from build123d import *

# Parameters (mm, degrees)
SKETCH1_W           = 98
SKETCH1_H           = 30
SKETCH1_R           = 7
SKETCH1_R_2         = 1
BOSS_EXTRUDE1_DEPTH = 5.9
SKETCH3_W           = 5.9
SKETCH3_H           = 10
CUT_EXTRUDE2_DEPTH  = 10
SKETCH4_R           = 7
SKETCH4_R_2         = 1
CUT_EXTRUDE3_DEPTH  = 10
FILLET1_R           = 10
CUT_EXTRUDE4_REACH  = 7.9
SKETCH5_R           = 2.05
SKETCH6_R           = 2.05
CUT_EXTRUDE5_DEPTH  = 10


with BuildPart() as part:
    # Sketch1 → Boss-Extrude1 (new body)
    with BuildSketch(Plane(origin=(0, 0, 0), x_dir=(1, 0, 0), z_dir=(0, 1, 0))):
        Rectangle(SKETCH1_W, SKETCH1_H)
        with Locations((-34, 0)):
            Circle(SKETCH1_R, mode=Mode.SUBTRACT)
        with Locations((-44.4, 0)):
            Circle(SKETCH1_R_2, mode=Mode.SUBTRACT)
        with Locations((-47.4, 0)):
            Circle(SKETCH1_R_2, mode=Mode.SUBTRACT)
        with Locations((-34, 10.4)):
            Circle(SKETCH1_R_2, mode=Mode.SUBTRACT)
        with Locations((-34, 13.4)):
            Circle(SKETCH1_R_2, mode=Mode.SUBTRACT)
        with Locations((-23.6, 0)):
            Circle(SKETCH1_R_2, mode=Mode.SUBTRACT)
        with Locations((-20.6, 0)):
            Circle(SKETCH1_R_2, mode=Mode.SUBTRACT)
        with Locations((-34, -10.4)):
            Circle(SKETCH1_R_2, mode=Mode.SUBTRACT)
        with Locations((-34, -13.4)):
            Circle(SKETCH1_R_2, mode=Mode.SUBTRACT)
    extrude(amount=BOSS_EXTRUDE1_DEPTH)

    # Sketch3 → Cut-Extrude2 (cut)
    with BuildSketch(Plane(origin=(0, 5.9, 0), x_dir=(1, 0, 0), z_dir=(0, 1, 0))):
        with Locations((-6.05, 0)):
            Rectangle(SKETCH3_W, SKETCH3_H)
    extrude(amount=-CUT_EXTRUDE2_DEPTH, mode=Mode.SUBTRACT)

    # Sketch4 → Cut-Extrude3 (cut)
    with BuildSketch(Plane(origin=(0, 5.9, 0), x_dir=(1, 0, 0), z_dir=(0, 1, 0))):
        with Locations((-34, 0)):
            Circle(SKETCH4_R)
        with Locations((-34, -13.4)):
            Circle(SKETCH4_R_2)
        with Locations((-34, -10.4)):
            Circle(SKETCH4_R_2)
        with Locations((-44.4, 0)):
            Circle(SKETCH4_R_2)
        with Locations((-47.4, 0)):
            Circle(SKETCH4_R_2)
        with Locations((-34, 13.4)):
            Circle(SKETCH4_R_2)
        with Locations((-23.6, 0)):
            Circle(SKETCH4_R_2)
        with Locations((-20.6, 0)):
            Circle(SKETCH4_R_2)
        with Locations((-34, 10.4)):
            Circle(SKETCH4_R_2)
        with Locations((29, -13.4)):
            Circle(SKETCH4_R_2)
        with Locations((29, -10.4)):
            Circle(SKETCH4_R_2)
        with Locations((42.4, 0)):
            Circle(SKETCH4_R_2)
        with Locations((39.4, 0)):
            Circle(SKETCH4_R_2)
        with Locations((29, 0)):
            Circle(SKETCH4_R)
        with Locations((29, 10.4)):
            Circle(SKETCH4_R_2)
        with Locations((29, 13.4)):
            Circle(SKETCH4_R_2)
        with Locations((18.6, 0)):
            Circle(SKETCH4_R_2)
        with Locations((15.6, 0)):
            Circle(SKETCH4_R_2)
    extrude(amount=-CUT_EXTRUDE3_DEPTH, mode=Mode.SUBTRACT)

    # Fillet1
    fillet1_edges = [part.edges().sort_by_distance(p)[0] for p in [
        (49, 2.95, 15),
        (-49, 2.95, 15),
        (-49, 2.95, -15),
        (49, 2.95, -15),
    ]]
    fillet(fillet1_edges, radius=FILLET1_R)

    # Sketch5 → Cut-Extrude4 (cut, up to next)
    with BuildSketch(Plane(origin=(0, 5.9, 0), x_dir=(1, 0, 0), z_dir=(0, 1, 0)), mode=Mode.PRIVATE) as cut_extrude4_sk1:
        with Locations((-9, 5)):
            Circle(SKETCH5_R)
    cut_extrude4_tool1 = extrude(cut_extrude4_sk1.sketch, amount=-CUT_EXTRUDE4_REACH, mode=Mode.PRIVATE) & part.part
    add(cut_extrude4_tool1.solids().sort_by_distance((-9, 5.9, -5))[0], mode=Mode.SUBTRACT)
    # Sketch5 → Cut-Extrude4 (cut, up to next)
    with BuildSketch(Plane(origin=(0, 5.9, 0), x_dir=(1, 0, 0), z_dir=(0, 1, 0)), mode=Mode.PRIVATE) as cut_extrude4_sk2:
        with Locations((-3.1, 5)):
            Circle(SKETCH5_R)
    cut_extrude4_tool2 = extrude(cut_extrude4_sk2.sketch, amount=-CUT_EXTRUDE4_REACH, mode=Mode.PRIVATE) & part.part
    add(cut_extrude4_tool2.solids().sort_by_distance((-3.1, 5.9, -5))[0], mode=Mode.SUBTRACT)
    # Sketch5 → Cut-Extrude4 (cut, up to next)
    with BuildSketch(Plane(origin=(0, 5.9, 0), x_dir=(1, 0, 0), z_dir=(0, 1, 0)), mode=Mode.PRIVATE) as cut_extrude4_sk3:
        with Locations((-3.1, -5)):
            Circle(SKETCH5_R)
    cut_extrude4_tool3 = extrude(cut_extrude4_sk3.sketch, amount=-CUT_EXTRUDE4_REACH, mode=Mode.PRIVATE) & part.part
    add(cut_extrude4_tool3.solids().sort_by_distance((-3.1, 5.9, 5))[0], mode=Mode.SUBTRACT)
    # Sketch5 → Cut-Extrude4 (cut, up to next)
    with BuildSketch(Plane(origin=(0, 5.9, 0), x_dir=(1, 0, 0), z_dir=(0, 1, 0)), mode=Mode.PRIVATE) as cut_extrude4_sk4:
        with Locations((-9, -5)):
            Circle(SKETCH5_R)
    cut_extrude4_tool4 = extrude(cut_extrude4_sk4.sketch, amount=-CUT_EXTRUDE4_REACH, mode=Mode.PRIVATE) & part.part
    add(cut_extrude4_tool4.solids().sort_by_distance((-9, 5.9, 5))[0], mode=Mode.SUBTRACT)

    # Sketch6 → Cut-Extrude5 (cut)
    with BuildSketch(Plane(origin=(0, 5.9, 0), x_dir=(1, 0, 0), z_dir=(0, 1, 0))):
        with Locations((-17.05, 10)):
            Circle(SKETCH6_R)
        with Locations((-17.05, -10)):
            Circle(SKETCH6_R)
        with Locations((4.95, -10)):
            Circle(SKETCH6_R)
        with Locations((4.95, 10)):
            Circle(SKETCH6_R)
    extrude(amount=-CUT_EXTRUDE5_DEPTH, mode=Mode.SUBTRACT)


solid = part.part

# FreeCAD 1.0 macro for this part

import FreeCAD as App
import Part
import Sketcher


def edges_at(feature, points):
    """Names of the edges that pass closest to the given points."""
    edges = feature.Shape.Edges
    near = lambda p: min(range(len(edges)), key=lambda i: edges[i].distToShape(Part.Vertex(*p))[0])
    return sorted({f"Edge{near(p) + 1}" for p in points})

doc = App.newDocument("Part")
params = doc.addObject("Spreadsheet::Sheet", "Params")
for row, (alias, value) in enumerate([
    ("sketch1_diameter", "2 mm"),
    ("sketch1_diameter2", "14 mm"),
    ("sketch1_width", "98 mm"),
    ("sketch1_height", "30 mm"),
    ("pad1_length", "5.9 mm"),
    ("sketch2_height", "10 mm"),
    ("sketch2_width", "5.9 mm"),
    ("pocket1_length", "10 mm"),
    ("sketch3_diameter", "14 mm"),
    ("sketch3_diameter2", "2 mm"),
    ("pocket2_length", "10 mm"),
    ("fillet_radius", "10 mm"),
    ("sketch4_diameter", "4.1 mm"),
    ("sketch5_diameter", "4.1 mm"),
    ("sketch6_diameter", "4.1 mm"),
    ("sketch7_diameter", "4.1 mm"),
    ("sketch8_diameter", "4.1 mm"),
    ("pocket7_length", "10 mm"),
], start=1):
    params.set(f"A{row}", alias)
    params.set(f"B{row}", "=" + value)
    params.setAlias(f"B{row}", alias)

body = doc.addObject("PartDesign::Body", "Body")

# Sketch on XZ plane
sketch1 = doc.addObject("Sketcher::SketchObject", "Sketch")
body.addObject(sketch1)
sketch1.AttachmentSupport = (doc.XZ_Plane, [""])
sketch1.MapMode = "FlatFace"
sketch1.addGeometry([
    Part.LineSegment(App.Vector(-49, -15, 0), App.Vector(-49, 15, 0)),  # 0
    Part.LineSegment(App.Vector(-49, 15, 0), App.Vector(49, 15, 0)),  # 1
    Part.LineSegment(App.Vector(49, 15, 0), App.Vector(49, -15, 0)),  # 2
    Part.LineSegment(App.Vector(49, -15, 0), App.Vector(-49, -15, 0)),  # 3
    Part.Circle(App.Vector(-34, 13.4, 0), App.Vector(0, 0, 1), 1),  # 4
    Part.Circle(App.Vector(-34, 10.4, 0), App.Vector(0, 0, 1), 1),  # 5
    Part.Circle(App.Vector(-47.4, 0, 0), App.Vector(0, 0, 1), 1),  # 6
    Part.Circle(App.Vector(-44.4, 0, 0), App.Vector(0, 0, 1), 1),  # 7
    Part.Circle(App.Vector(-34, 0, 0), App.Vector(0, 0, 1), 7),  # 8
    Part.Circle(App.Vector(-23.6, 0, 0), App.Vector(0, 0, 1), 1),  # 9
    Part.Circle(App.Vector(-20.6, 0, 0), App.Vector(0, 0, 1), 1),  # 10
    Part.Circle(App.Vector(-34, -10.4, 0), App.Vector(0, 0, 1), 1),  # 11
    Part.Circle(App.Vector(-34, -13.4, 0), App.Vector(0, 0, 1), 1),  # 12
], False)
sketch1.addConstraint([
    Sketcher.Constraint("Coincident", 0, 2, 1, 1),
    Sketcher.Constraint("Coincident", 1, 2, 2, 1),
    Sketcher.Constraint("Coincident", 2, 2, 3, 1),
    Sketcher.Constraint("Coincident", 3, 2, 0, 1),
    Sketcher.Constraint("Vertical", 0),
    Sketcher.Constraint("Horizontal", 1),
    Sketcher.Constraint("Vertical", 2),
    Sketcher.Constraint("Horizontal", 3),
    Sketcher.Constraint("Equal", 4, 5),
    Sketcher.Constraint("Equal", 5, 6),
    Sketcher.Constraint("Equal", 6, 7),
    Sketcher.Constraint("Equal", 7, 9),
    Sketcher.Constraint("Equal", 9, 10),
    Sketcher.Constraint("Equal", 10, 11),
    Sketcher.Constraint("Equal", 11, 12),
    Sketcher.Constraint("Symmetric", 0, 2, 2, 2, -1, 1),
    Sketcher.Constraint("Symmetric", 5, 3, 11, 3, -1),
    Sketcher.Constraint("Symmetric", 4, 3, 12, 3, -1),
    Sketcher.Constraint("PointOnObject", 6, 3, -1),
    Sketcher.Constraint("PointOnObject", 7, 3, -1),
    Sketcher.Constraint("PointOnObject", 8, 3, -1),
    Sketcher.Constraint("PointOnObject", 9, 3, -1),
    Sketcher.Constraint("PointOnObject", 10, 3, -1),
    Sketcher.Constraint("Vertical", 4, 3, 5, 3),
    Sketcher.Constraint("Vertical", 5, 3, 8, 3),
    Sketcher.Constraint("Diameter", 4, 2.0),
    Sketcher.Constraint("Diameter", 8, 14.0),
    Sketcher.Constraint("DistanceX", 1, 1, 1, 2, 98.0),
    Sketcher.Constraint("DistanceY", 0, 1, 0, 2, 30.0),
    Sketcher.Constraint("DistanceX", 4, 3, -1, 1, 34.0),
    Sketcher.Constraint("DistanceY", 5, 3, 4, 3, 3.0),
    Sketcher.Constraint("DistanceX", 6, 3, 7, 3, 3.0),
    Sketcher.Constraint("DistanceX", 9, 3, 10, 3, 3.0),
    Sketcher.Constraint("DistanceY", -1, 1, 4, 3, 13.4),
    Sketcher.Constraint("DistanceX", 6, 3, -1, 1, 47.4),
    Sketcher.Constraint("DistanceX", 9, 3, -1, 1, 23.6),
])
sketch1.setExpression("Constraints[25]", "Params.sketch1_diameter")
sketch1.setExpression("Constraints[26]", "Params.sketch1_diameter2")
sketch1.setExpression("Constraints[27]", "Params.sketch1_width")
sketch1.setExpression("Constraints[28]", "Params.sketch1_height")
pad1 = doc.addObject("PartDesign::Pad", "Pad")
body.addObject(pad1)
pad1.Profile = sketch1
pad1.setExpression("Length", "Params.pad1_length")
pad1.Reversed = True

# Sketch on XZ plane
sketch2 = doc.addObject("Sketcher::SketchObject", "Sketch001")
body.addObject(sketch2)
sketch2.AttachmentSupport = (doc.XZ_Plane, [""])
sketch2.MapMode = "FlatFace"
sketch2.AttachmentOffset = App.Placement(App.Vector(0, 0, -5.9), App.Rotation())
sketch2.addGeometry([
    Part.LineSegment(App.Vector(-9, -5, 0), App.Vector(-9, 5, 0)),
    Part.LineSegment(App.Vector(-9, 5, 0), App.Vector(-3, 5, 0)),
    Part.LineSegment(App.Vector(-3, 5, 0), App.Vector(-3, -5, 0)),
    Part.LineSegment(App.Vector(-3, -5, 0), App.Vector(-9, -5, 0)),
], False)
sketch2.addConstraint([
    Sketcher.Constraint("Coincident", 0, 2, 1, 1),
    Sketcher.Constraint("Coincident", 1, 2, 2, 1),
    Sketcher.Constraint("Coincident", 2, 2, 3, 1),
    Sketcher.Constraint("Coincident", 3, 2, 0, 1),
    Sketcher.Constraint("Vertical", 0),
    Sketcher.Constraint("Horizontal", 1),
    Sketcher.Constraint("Vertical", 2),
    Sketcher.Constraint("Horizontal", 3),
    Sketcher.Constraint("DistanceY", 0, 1, 0, 2, 10.0),
    Sketcher.Constraint("DistanceX", 1, 1, 1, 2, 5.9),
    Sketcher.Constraint("DistanceX", 0, 2, -1, 1, 9.0),
    Sketcher.Constraint("DistanceY", -1, 1, 0, 2, 5.0),
])
sketch2.setExpression("Constraints[8]", "Params.sketch2_height")
sketch2.setExpression("Constraints[9]", "Params.sketch2_width")
pocket1 = doc.addObject("PartDesign::Pocket", "Pocket")
body.addObject(pocket1)
pocket1.Profile = sketch2
pocket1.setExpression("Length", "Params.pocket1_length")
pocket1.Reversed = True

# Sketch on XZ plane
sketch3 = doc.addObject("Sketcher::SketchObject", "Sketch002")
body.addObject(sketch3)
sketch3.AttachmentSupport = (doc.XZ_Plane, [""])
sketch3.MapMode = "FlatFace"
sketch3.AttachmentOffset = App.Placement(App.Vector(0, 0, -5.9), App.Rotation())
sketch3.addGeometry([
    Part.Circle(App.Vector(-34, 0, 0), App.Vector(0, 0, 1), 7),  # 0
    Part.Circle(App.Vector(-34, 13.4, 0), App.Vector(0, 0, 1), 1),  # 1
    Part.Circle(App.Vector(-34, 10.4, 0), App.Vector(0, 0, 1), 1),  # 2
    Part.Circle(App.Vector(-44.4, 0, 0), App.Vector(0, 0, 1), 1),  # 3
    Part.Circle(App.Vector(-47.4, 0, 0), App.Vector(0, 0, 1), 1),  # 4
    Part.Circle(App.Vector(-34, -13.4, 0), App.Vector(0, 0, 1), 1),  # 5
    Part.Circle(App.Vector(-23.6, 0, 0), App.Vector(0, 0, 1), 1),  # 6
    Part.Circle(App.Vector(-20.6, 0, 0), App.Vector(0, 0, 1), 1),  # 7
    Part.Circle(App.Vector(-34, -10.4, 0), App.Vector(0, 0, 1), 1),  # 8
    Part.Circle(App.Vector(29, 13.4, 0), App.Vector(0, 0, 1), 1),  # 9
    Part.Circle(App.Vector(29, 10.4, 0), App.Vector(0, 0, 1), 1),  # 10
    Part.Circle(App.Vector(42.4, 0, 0), App.Vector(0, 0, 1), 1),  # 11
    Part.Circle(App.Vector(39.4, 0, 0), App.Vector(0, 0, 1), 1),  # 12
    Part.Circle(App.Vector(29, 0, 0), App.Vector(0, 0, 1), 7),  # 13
    Part.Circle(App.Vector(29, -10.4, 0), App.Vector(0, 0, 1), 1),  # 14
    Part.Circle(App.Vector(29, -13.4, 0), App.Vector(0, 0, 1), 1),  # 15
    Part.Circle(App.Vector(18.6, 0, 0), App.Vector(0, 0, 1), 1),  # 16
    Part.Circle(App.Vector(15.6, 0, 0), App.Vector(0, 0, 1), 1),  # 17
], False)
sketch3.addConstraint([
    Sketcher.Constraint("Equal", 1, 2),
    Sketcher.Constraint("Equal", 2, 3),
    Sketcher.Constraint("Equal", 3, 4),
    Sketcher.Constraint("Equal", 4, 5),
    Sketcher.Constraint("Equal", 5, 6),
    Sketcher.Constraint("Equal", 6, 7),
    Sketcher.Constraint("Equal", 7, 8),
    Sketcher.Constraint("Equal", 8, 9),
    Sketcher.Constraint("Equal", 9, 10),
    Sketcher.Constraint("Equal", 10, 11),
    Sketcher.Constraint("Equal", 11, 12),
    Sketcher.Constraint("Equal", 0, 13),
    Sketcher.Constraint("Equal", 12, 14),
    Sketcher.Constraint("Equal", 14, 15),
    Sketcher.Constraint("Equal", 15, 16),
    Sketcher.Constraint("Equal", 16, 17),
    Sketcher.Constraint("Symmetric", 1, 3, 5, 3, -1),
    Sketcher.Constraint("Symmetric", 2, 3, 8, 3, -1),
    Sketcher.Constraint("Symmetric", 10, 3, 14, 3, -1),
    Sketcher.Constraint("Symmetric", 9, 3, 15, 3, -1),
    Sketcher.Constraint("PointOnObject", 0, 3, -1),
    Sketcher.Constraint("PointOnObject", 3, 3, -1),
    Sketcher.Constraint("PointOnObject", 4, 3, -1),
    Sketcher.Constraint("PointOnObject", 6, 3, -1),
    Sketcher.Constraint("PointOnObject", 7, 3, -1),
    Sketcher.Constraint("PointOnObject", 11, 3, -1),
    Sketcher.Constraint("PointOnObject", 12, 3, -1),
    Sketcher.Constraint("PointOnObject", 13, 3, -1),
    Sketcher.Constraint("PointOnObject", 16, 3, -1),
    Sketcher.Constraint("PointOnObject", 17, 3, -1),
    Sketcher.Constraint("Horizontal", 1, 3, 9, 3),
    Sketcher.Constraint("Horizontal", 2, 3, 10, 3),
    Sketcher.Constraint("Vertical", 0, 3, 1, 3),
    Sketcher.Constraint("Vertical", 1, 3, 2, 3),
    Sketcher.Constraint("Vertical", 9, 3, 10, 3),
    Sketcher.Constraint("Vertical", 10, 3, 13, 3),
    Sketcher.Constraint("Diameter", 0, 14.0),
    Sketcher.Constraint("Diameter", 1, 2.0),
    Sketcher.Constraint("DistanceX", 0, 3, -1, 1, 34.0),
    Sketcher.Constraint("DistanceX", -1, 1, 9, 3, 29.0),
    Sketcher.Constraint("DistanceY", 2, 3, 1, 3, 3.0),
    Sketcher.Constraint("DistanceX", 4, 3, 3, 3, 3.0),
    Sketcher.Constraint("DistanceX", 6, 3, 7, 3, 3.0),
    Sketcher.Constraint("DistanceX", 7, 3, 11, 3, 63.0),
    Sketcher.Constraint("DistanceX", 12, 3, 11, 3, 3.0),
    Sketcher.Constraint("DistanceX", 17, 3, 16, 3, 3.0),
    Sketcher.Constraint("DistanceY", -1, 1, 1, 3, 13.4),
    Sketcher.Constraint("DistanceX", 3, 3, -1, 1, 44.4),
    Sketcher.Constraint("DistanceX", 6, 3, -1, 1, 23.6),
    Sketcher.Constraint("DistanceX", -1, 1, 16, 3, 18.6),
])
sketch3.setExpression("Constraints[36]", "Params.sketch3_diameter")
sketch3.setExpression("Constraints[37]", "Params.sketch3_diameter2")
pocket2 = doc.addObject("PartDesign::Pocket", "Pocket001")
body.addObject(pocket2)
pocket2.Profile = sketch3
pocket2.setExpression("Length", "Params.pocket2_length")
pocket2.Reversed = True
doc.recompute()

fillet = doc.addObject("PartDesign::Fillet", "Fillet")
body.addObject(fillet)
fillet.Base = (pocket2, edges_at(pocket2, [
    (49, 2.95, 15),
    (-49, 2.95, 15),
    (-49, 2.95, -15),
    (49, 2.95, -15),
]))
fillet.setExpression("Radius", "Params.fillet_radius")

# Sketch on XZ plane
sketch4 = doc.addObject("Sketcher::SketchObject", "Sketch003")
body.addObject(sketch4)
sketch4.AttachmentSupport = (doc.XZ_Plane, [""])
sketch4.MapMode = "FlatFace"
sketch4.AttachmentOffset = App.Placement(App.Vector(0, 0, -5.9), App.Rotation())
sketch4.addGeometry(Part.Circle(App.Vector(-9, -5, 0), App.Vector(0, 0, 1), 2), False)
sketch4.addConstraint([
    Sketcher.Constraint("Diameter", 0, 4.1),
    Sketcher.Constraint("DistanceX", 0, 3, -1, 1, 9.0),
    Sketcher.Constraint("DistanceY", 0, 3, -1, 1, 5.0),
])
sketch4.setExpression("Constraints[0]", "Params.sketch4_diameter")
pocket3 = doc.addObject("PartDesign::Pocket", "Pocket002")
body.addObject(pocket3)
pocket3.Profile = sketch4
pocket3.Type = "UpToFirst"
pocket3.Reversed = True

# Sketch on XZ plane
sketch5 = doc.addObject("Sketcher::SketchObject", "Sketch004")
body.addObject(sketch5)
sketch5.AttachmentSupport = (doc.XZ_Plane, [""])
sketch5.MapMode = "FlatFace"
sketch5.AttachmentOffset = App.Placement(App.Vector(0, 0, -5.9), App.Rotation())
sketch5.addGeometry(Part.Circle(App.Vector(-3.1, -5, 0), App.Vector(0, 0, 1), 2), False)
sketch5.addConstraint([
    Sketcher.Constraint("Diameter", 0, 4.1),
    Sketcher.Constraint("DistanceY", 0, 3, -1, 1, 5.0),
    Sketcher.Constraint("DistanceX", 0, 3, -1, 1, 3.1),
])
sketch5.setExpression("Constraints[0]", "Params.sketch5_diameter")
pocket4 = doc.addObject("PartDesign::Pocket", "Pocket003")
body.addObject(pocket4)
pocket4.Profile = sketch5
pocket4.Type = "UpToFirst"
pocket4.Reversed = True

# Sketch on XZ plane
sketch6 = doc.addObject("Sketcher::SketchObject", "Sketch005")
body.addObject(sketch6)
sketch6.AttachmentSupport = (doc.XZ_Plane, [""])
sketch6.MapMode = "FlatFace"
sketch6.AttachmentOffset = App.Placement(App.Vector(0, 0, -5.9), App.Rotation())
sketch6.addGeometry(Part.Circle(App.Vector(-3.1, 5, 0), App.Vector(0, 0, 1), 2), False)
sketch6.addConstraint([
    Sketcher.Constraint("Diameter", 0, 4.1),
    Sketcher.Constraint("DistanceY", -1, 1, 0, 3, 5.0),
    Sketcher.Constraint("DistanceX", 0, 3, -1, 1, 3.1),
])
sketch6.setExpression("Constraints[0]", "Params.sketch6_diameter")
pocket5 = doc.addObject("PartDesign::Pocket", "Pocket004")
body.addObject(pocket5)
pocket5.Profile = sketch6
pocket5.Type = "UpToFirst"
pocket5.Reversed = True

# Sketch on XZ plane
sketch7 = doc.addObject("Sketcher::SketchObject", "Sketch006")
body.addObject(sketch7)
sketch7.AttachmentSupport = (doc.XZ_Plane, [""])
sketch7.MapMode = "FlatFace"
sketch7.AttachmentOffset = App.Placement(App.Vector(0, 0, -5.9), App.Rotation())
sketch7.addGeometry(Part.Circle(App.Vector(-9, 5, 0), App.Vector(0, 0, 1), 2), False)
sketch7.addConstraint([
    Sketcher.Constraint("Diameter", 0, 4.1),
    Sketcher.Constraint("DistanceX", 0, 3, -1, 1, 9.0),
    Sketcher.Constraint("DistanceY", -1, 1, 0, 3, 5.0),
])
sketch7.setExpression("Constraints[0]", "Params.sketch7_diameter")
pocket6 = doc.addObject("PartDesign::Pocket", "Pocket005")
body.addObject(pocket6)
pocket6.Profile = sketch7
pocket6.Type = "UpToFirst"
pocket6.Reversed = True

# Sketch on XZ plane
sketch8 = doc.addObject("Sketcher::SketchObject", "Sketch007")
body.addObject(sketch8)
sketch8.AttachmentSupport = (doc.XZ_Plane, [""])
sketch8.MapMode = "FlatFace"
sketch8.AttachmentOffset = App.Placement(App.Vector(0, 0, -5.9), App.Rotation())
sketch8.addGeometry([
    Part.Circle(App.Vector(-17.1, -10, 0), App.Vector(0, 0, 1), 2),
    Part.Circle(App.Vector(-17.1, 10, 0), App.Vector(0, 0, 1), 2),
    Part.Circle(App.Vector(5, 10, 0), App.Vector(0, 0, 1), 2),
    Part.Circle(App.Vector(5, -10, 0), App.Vector(0, 0, 1), 2),
], False)
sketch8.addConstraint([
    Sketcher.Constraint("Equal", 0, 1),
    Sketcher.Constraint("Equal", 1, 2),
    Sketcher.Constraint("Equal", 2, 3),
    Sketcher.Constraint("Symmetric", 0, 3, 1, 3, -1),
    Sketcher.Constraint("Symmetric", 2, 3, 3, 3, -1),
    Sketcher.Constraint("Horizontal", 1, 3, 2, 3),
    Sketcher.Constraint("Diameter", 0, 4.1),
    Sketcher.Constraint("DistanceY", 0, 3, -1, 1, 10.0),
    Sketcher.Constraint("DistanceX", 1, 3, 2, 3, 22.0),
    Sketcher.Constraint("DistanceX", 0, 3, -1, 1, 17.05),
])
sketch8.setExpression("Constraints[6]", "Params.sketch8_diameter")
pocket7 = doc.addObject("PartDesign::Pocket", "Pocket006")
body.addObject(pocket7)
pocket7.Profile = sketch8
pocket7.setExpression("Length", "Params.pocket7_length")
pocket7.Reversed = True

doc.recompute()
